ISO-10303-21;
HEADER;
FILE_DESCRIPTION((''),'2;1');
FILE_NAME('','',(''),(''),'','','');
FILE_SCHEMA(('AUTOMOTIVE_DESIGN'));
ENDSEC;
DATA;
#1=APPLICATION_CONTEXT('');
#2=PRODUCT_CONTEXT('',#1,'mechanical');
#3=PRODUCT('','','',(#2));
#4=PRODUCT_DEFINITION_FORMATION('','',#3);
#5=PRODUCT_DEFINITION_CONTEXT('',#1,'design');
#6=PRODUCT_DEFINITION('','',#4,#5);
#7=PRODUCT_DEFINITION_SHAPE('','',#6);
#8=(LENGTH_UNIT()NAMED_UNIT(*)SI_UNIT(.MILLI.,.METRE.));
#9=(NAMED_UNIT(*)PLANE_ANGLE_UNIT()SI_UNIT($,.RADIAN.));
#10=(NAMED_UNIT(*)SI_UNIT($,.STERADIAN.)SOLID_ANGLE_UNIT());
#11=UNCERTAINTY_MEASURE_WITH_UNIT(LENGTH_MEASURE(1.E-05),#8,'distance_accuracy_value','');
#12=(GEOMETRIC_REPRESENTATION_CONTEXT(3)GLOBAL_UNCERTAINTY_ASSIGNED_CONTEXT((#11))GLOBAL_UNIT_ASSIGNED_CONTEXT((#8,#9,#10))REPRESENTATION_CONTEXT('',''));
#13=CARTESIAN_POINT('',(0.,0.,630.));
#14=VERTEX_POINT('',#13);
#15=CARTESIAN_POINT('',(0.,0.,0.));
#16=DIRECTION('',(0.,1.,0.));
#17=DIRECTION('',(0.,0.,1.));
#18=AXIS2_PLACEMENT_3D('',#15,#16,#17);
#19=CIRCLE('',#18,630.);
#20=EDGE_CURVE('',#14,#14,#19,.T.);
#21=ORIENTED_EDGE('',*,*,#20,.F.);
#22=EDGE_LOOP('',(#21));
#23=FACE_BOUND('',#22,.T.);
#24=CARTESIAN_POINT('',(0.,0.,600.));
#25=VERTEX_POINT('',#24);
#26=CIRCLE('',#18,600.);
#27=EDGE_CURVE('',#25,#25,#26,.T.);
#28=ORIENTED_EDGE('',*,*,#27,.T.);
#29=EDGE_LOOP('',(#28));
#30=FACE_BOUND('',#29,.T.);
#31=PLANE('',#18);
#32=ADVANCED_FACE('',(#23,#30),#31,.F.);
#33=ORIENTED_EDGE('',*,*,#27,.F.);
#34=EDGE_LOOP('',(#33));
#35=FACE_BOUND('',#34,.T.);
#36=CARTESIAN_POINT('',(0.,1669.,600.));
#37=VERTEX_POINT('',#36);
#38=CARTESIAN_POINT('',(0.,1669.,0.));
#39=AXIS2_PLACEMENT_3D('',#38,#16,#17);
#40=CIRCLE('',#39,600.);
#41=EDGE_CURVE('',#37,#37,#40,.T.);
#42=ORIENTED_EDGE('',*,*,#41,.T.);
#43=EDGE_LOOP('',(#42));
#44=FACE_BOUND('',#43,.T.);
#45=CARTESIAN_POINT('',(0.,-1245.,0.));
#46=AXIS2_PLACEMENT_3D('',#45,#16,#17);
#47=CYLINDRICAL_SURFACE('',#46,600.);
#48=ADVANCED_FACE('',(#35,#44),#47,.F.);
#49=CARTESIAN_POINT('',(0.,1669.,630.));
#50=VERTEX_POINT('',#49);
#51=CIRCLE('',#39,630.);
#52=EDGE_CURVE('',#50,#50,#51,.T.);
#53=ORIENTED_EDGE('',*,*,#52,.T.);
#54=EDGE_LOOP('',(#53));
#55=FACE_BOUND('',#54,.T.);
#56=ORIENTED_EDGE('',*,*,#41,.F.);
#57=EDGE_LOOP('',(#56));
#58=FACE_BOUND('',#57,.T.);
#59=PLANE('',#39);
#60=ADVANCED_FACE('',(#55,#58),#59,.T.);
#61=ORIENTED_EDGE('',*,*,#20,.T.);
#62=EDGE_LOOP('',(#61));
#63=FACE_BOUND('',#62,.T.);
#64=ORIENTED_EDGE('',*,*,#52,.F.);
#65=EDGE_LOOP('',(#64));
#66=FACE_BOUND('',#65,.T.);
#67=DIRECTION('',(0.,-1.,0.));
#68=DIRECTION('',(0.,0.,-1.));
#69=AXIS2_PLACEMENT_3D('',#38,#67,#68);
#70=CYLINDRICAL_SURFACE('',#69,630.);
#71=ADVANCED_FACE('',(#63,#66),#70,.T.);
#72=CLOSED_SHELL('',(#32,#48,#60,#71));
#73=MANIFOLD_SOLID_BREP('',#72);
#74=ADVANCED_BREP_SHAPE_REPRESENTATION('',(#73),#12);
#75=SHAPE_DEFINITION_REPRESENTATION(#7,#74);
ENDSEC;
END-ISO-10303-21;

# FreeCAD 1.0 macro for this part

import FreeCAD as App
import Part
import Sketcher

V = App.Vector
Q = App.Units.Quantity

doc = App.newDocument("Part")
params = doc.addObject("Spreadsheet::Sheet", "Params")
for row, (alias, value) in enumerate([
    ("sketch1_diameter", "1260 mm"),
    ("pad1_length", "1669 mm"),
    ("sketch2_diameter", "1200 mm"),
    ("pocket1_length", "2914 mm"),
], start=1):
    params.set(f"A{row}", alias)
    params.set(f"B{row}", "=" + value)
    params.setAlias(f"B{row}", alias)

body = doc.addObject("PartDesign::Body", "Body")

sketch1 = body.newObject("Sketcher::SketchObject", "Sketch")
sketch1.AttachmentSupport = (doc.getObject("XZ_Plane"), [""])
sketch1.MapMode = "FlatFace"
sketch1.addGeometry(Part.Circle(V(0, 0, 0), V(0, 0, 1), 630), False)
sketch1.addConstraint(Sketcher.Constraint("Coincident", 0, 3, -1, 1))
sketch1.addConstraint(Sketcher.Constraint("Diameter", 0, Q("1260 mm")))
sketch1.setExpression("Constraints[1]", "Params.sketch1_diameter")
pad1 = body.newObject("PartDesign::Pad", "Pad")
pad1.Profile = sketch1
pad1.setExpression("Length", "Params.pad1_length")
pad1.Reversed = True

sketch2 = body.newObject("Sketcher::SketchObject", "Sketch001")
sketch2.AttachmentSupport = (doc.getObject("XZ_Plane"), [""])
sketch2.MapMode = "FlatFace"
sketch2.AttachmentOffset = App.Placement(V(0, 0, -1669), App.Rotation())
sketch2.addGeometry(Part.Circle(V(0, 0, 0), V(0, 0, 1), 600), False)
sketch2.addConstraint(Sketcher.Constraint("Coincident", 0, 3, -1, 1))
sketch2.addConstraint(Sketcher.Constraint("Diameter", 0, Q("1200 mm")))
sketch2.setExpression("Constraints[1]", "Params.sketch2_diameter")
pocket1 = body.newObject("PartDesign::Pocket", "Pocket")
pocket1.Profile = sketch2
pocket1.setExpression("Length", "Params.pocket1_length")
pocket1.Reversed = True

doc.recompute()
